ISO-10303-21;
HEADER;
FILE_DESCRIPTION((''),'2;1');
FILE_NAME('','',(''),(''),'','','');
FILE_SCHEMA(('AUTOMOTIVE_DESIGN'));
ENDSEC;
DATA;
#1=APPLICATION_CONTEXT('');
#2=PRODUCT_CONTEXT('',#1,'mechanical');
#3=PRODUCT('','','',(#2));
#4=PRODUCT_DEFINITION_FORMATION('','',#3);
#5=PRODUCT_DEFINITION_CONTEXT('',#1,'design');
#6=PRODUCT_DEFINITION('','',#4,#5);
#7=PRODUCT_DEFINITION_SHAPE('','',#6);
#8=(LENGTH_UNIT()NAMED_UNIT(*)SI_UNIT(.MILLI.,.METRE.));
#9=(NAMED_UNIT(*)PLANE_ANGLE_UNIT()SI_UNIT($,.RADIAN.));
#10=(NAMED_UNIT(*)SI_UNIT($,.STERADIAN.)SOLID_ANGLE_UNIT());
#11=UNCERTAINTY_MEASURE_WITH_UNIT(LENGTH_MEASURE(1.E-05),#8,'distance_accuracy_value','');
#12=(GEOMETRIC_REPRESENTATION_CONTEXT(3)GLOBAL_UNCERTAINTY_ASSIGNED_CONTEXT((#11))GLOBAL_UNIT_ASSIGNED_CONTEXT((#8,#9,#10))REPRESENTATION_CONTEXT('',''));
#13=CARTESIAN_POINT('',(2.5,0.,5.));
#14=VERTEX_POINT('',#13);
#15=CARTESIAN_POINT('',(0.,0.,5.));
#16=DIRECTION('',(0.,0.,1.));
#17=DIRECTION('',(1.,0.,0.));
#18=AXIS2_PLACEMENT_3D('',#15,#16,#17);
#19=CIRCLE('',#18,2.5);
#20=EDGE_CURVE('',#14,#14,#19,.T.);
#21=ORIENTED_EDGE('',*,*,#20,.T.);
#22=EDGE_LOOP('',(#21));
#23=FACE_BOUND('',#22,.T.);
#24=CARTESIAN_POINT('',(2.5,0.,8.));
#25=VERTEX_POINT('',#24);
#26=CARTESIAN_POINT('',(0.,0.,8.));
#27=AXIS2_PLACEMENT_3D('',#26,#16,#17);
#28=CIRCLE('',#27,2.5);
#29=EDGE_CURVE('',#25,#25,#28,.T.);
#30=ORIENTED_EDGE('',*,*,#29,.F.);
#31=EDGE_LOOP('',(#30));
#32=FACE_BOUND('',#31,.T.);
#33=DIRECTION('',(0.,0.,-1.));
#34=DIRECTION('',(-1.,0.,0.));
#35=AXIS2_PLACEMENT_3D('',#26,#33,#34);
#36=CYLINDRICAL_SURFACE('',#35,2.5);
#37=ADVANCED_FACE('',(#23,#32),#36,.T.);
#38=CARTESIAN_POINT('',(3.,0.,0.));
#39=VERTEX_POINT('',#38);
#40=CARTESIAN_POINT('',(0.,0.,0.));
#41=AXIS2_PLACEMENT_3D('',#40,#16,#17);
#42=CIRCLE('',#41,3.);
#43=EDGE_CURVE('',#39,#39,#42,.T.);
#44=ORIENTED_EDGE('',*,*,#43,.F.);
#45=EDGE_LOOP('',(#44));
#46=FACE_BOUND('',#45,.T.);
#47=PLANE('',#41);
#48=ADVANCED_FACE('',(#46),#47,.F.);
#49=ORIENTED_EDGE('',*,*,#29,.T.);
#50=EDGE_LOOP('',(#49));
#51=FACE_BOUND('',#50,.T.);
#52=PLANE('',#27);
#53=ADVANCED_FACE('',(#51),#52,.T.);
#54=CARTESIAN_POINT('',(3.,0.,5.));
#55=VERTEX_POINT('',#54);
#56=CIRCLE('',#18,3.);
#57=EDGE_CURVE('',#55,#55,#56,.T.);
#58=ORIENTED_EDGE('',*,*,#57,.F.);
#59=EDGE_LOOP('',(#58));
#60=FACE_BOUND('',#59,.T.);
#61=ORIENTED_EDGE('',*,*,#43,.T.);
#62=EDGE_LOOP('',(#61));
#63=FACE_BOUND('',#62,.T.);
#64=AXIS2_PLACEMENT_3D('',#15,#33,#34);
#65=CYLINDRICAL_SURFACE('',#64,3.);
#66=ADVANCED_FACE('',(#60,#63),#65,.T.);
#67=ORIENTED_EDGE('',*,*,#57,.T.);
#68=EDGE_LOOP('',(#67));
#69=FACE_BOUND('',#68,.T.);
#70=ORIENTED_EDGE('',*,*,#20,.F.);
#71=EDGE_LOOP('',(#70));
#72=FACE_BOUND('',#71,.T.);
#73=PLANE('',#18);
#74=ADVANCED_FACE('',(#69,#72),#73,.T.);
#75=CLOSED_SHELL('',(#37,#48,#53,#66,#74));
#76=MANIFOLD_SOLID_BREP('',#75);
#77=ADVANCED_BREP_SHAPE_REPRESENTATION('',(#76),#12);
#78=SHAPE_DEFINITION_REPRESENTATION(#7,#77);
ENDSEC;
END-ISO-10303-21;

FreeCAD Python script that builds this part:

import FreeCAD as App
import Part
import Sketcher

doc = App.newDocument("Part")
params = doc.addObject("Spreadsheet::Sheet", "Params")
for row, (alias, value) in enumerate([
    ("sketch1_diameter", "6 mm"),
    ("pad1_length", "5 mm"),
    ("sketch2_diameter", "5 mm"),
    ("pad2_length", "3 mm"),
], start=1):
    params.set(f"A{row}", alias)
    params.set(f"B{row}", "=" + value)
    params.setAlias(f"B{row}", alias)

body = doc.addObject("PartDesign::Body", "Body")

# Sketch on XY plane
sketch1 = doc.addObject("Sketcher::SketchObject", "Sketch")
body.addObject(sketch1)
sketch1.AttachmentSupport = (doc.XY_Plane, [""])
sketch1.MapMode = "FlatFace"
sketch1.addGeometry(Part.Circle(App.Vector(0, 0, 0), App.Vector(0, 0, 1), 3), False)
sketch1.addConstraint(Sketcher.Constraint("Coincident", 0, 3, -1, 1))
sketch1.addConstraint(Sketcher.Constraint("Diameter", 0, 6.0))
sketch1.setExpression("Constraints[1]", "Params.sketch1_diameter")
pad1 = doc.addObject("PartDesign::Pad", "Pad")
body.addObject(pad1)
pad1.Profile = sketch1
pad1.setExpression("Length", "Params.pad1_length")

# Sketch on XY plane
sketch2 = doc.addObject("Sketcher::SketchObject", "Sketch001")
body.addObject(sketch2)
sketch2.AttachmentSupport = (doc.XY_Plane, [""])
sketch2.MapMode = "FlatFace"
sketch2.AttachmentOffset = App.Placement(App.Vector(0, 0, 5), App.Rotation())
sketch2.addGeometry(Part.Circle(App.Vector(0, 0, 0), App.Vector(0, 0, 1), 2.5), False)
sketch2.addConstraint(Sketcher.Constraint("Coincident", 0, 3, -1, 1))
sketch2.addConstraint(Sketcher.Constraint("Diameter", 0, 5.0))
sketch2.setExpression("Constraints[1]", "Params.sketch2_diameter")
pad2 = doc.addObject("PartDesign::Pad", "Pad001")
body.addObject(pad2)
pad2.Profile = sketch2
pad2.setExpression("Length", "Params.pad2_length")

doc.recompute()
